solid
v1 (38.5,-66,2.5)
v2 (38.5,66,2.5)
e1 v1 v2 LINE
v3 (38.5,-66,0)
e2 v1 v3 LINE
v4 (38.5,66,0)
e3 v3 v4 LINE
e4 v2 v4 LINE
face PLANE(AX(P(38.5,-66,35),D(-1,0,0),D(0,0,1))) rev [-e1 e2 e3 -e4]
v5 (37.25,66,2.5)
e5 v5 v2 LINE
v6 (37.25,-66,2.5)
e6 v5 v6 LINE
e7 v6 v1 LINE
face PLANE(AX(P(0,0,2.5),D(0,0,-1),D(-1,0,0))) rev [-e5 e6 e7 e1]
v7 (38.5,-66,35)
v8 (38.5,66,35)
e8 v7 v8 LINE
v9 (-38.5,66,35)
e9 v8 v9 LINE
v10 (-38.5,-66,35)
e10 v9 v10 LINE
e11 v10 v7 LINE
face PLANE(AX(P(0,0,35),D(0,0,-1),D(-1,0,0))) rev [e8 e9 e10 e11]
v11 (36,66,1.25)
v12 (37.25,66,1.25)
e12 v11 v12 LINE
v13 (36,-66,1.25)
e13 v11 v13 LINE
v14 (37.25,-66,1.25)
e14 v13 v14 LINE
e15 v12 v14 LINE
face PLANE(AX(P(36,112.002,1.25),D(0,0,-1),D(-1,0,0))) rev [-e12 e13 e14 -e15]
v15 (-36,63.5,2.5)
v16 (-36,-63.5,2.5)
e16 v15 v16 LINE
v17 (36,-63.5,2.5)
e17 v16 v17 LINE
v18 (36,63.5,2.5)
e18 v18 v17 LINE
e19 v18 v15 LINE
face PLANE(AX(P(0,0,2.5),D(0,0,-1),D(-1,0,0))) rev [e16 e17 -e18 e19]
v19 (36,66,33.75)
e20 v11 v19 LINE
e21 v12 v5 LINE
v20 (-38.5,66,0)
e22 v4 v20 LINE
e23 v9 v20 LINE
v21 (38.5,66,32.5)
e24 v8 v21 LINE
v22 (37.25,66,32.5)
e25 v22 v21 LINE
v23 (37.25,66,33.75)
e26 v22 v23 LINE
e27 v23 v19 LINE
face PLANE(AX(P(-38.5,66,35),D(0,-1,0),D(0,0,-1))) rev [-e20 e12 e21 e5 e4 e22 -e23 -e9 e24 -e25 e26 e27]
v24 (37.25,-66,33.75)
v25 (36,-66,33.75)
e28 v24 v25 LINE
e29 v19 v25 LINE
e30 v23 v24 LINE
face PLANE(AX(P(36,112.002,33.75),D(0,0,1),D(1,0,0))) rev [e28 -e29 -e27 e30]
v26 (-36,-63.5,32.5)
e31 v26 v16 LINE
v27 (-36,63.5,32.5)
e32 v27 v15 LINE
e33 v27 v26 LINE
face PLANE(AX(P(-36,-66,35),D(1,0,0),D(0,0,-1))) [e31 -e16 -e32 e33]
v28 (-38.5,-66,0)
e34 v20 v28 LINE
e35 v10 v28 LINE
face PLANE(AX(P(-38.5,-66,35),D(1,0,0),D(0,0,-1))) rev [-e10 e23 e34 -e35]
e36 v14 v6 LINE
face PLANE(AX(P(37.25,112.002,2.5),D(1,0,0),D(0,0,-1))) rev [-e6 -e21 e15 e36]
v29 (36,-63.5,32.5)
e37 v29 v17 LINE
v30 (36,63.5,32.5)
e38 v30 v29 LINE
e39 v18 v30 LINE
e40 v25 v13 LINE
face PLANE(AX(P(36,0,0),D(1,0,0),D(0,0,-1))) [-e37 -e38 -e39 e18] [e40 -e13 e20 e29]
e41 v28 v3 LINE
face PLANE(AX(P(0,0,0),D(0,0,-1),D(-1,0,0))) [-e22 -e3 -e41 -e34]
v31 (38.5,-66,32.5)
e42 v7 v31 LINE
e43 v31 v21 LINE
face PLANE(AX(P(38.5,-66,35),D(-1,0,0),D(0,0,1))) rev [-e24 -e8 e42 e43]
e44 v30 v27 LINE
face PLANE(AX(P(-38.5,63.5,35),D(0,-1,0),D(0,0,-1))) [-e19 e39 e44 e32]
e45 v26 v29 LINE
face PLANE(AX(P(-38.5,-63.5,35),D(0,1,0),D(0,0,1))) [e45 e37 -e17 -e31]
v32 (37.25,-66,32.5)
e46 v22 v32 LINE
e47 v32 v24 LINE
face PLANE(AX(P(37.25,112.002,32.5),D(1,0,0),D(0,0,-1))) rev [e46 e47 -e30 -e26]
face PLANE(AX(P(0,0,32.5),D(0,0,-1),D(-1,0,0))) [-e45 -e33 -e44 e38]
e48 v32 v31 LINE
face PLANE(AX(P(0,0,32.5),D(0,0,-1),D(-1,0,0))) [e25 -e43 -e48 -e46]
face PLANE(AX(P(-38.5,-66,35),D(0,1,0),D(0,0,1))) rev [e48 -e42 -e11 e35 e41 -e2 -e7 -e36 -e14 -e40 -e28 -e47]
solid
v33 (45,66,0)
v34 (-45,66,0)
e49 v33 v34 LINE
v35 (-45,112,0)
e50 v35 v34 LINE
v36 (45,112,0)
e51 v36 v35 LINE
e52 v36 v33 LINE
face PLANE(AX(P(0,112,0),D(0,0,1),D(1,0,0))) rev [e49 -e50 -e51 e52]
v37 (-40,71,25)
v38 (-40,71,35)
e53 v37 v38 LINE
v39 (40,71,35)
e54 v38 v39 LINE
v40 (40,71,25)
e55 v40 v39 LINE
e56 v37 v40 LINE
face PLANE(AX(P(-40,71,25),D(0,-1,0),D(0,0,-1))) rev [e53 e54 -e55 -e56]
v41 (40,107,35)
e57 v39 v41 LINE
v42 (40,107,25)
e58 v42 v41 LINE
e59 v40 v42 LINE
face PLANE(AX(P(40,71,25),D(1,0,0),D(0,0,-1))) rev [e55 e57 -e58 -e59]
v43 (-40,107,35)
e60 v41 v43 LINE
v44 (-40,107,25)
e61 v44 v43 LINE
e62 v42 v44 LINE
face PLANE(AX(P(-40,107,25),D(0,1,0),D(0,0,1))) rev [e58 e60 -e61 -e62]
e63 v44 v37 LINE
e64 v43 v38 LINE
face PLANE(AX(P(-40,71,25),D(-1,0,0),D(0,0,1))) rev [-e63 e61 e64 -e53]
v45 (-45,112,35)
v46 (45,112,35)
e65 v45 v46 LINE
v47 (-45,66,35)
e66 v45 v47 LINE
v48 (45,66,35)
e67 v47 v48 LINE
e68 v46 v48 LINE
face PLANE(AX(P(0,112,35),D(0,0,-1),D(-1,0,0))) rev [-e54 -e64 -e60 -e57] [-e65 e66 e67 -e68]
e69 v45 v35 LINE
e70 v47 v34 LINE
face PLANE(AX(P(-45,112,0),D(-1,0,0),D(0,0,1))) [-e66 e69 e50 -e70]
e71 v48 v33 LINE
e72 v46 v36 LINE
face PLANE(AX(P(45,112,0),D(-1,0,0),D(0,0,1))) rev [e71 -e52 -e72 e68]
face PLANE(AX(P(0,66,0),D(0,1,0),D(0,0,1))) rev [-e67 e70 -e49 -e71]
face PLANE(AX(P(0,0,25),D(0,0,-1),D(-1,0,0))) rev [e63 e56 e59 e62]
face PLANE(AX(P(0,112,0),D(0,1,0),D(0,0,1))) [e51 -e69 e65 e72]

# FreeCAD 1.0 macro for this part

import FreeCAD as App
import Part
import Sketcher


def faces_at(feature, points):
    """Names of the faces that lie closest to the given points."""
    faces = feature.Shape.Faces
    near = lambda p: min(range(len(faces)), key=lambda i: faces[i].distToShape(Part.Vertex(*p))[0])
    return sorted({f"Face{near(p) + 1}" for p in points})


def add_polygon(sketch, points):
    """Adds a closed chain of lines whose ends are joined by coincident constraints."""
    first, n = sketch.GeometryCount, len(points)
    for a, b in zip(points, points[1:] + points[:1]):
        sketch.addGeometry(Part.LineSegment(App.Vector(*a, 0), App.Vector(*b, 0)), False)
    for i in range(n):
        sketch.addConstraint(Sketcher.Constraint("Coincident", first + i, 2, first + (i + 1) % n, 1))

doc = App.newDocument("Part")
body = doc.addObject("PartDesign::Body", "Body")

sketch1 = body.newObject("Sketcher::SketchObject", "Sketch")
sketch1.AttachmentSupport = (doc.getObject("XY_Plane"), [""])
sketch1.MapMode = "FlatFace"
add_polygon(sketch1, [(-38, 66), (-38, -66), (38, -66), (38, 66)])
sketch1.addConstraint(Sketcher.Constraint("Vertical", 0))
sketch1.addConstraint(Sketcher.Constraint("Horizontal", 1))
sketch1.addConstraint(Sketcher.Constraint("Vertical", 2))
sketch1.addConstraint(Sketcher.Constraint("Horizontal", 3))
sketch1.addConstraint(Sketcher.Constraint("Symmetric", 0, 2, 2, 2, -1, 1))
sketch1.addConstraint(Sketcher.Constraint("DistanceX", 1, 1, 1, 2, 77.0))
sketch1.addConstraint(Sketcher.Constraint("DistanceY", 0, 2, 0, 1, 132.0))
pad1 = body.newObject("PartDesign::Pad", "Pad")
pad1.Profile = sketch1
pad1.Length = 35
doc.recompute()

thickness = body.newObject("PartDesign::Thickness", "Thickness")
thickness.Base = (pad1, faces_at(pad1, [(38.5, 0, 17.5)]))
thickness.Value = 2.5
thickness.Reversed = True
thickness.Join = "Intersection"

sketch2 = body.newObject("Sketcher::SketchObject", "Sketch001")
sketch2.AttachmentSupport = (doc.getObject("YZ_Plane"), [""])
sketch2.MapMode = "FlatFace"
sketch2.AttachmentOffset = App.Placement(App.Vector(0, 0, 38.5), App.Rotation())
add_polygon(sketch2, [(66, 32), (-66, 32), (-66, 2), (66, 2)])
sketch2.addConstraint(Sketcher.Constraint("Horizontal", 0))
sketch2.addConstraint(Sketcher.Constraint("Vertical", 1))
sketch2.addConstraint(Sketcher.Constraint("Horizontal", 2))
sketch2.addConstraint(Sketcher.Constraint("Vertical", 3))
sketch2.addConstraint(Sketcher.Constraint("DistanceX", 0, 2, 0, 1, 132.0))
sketch2.addConstraint(Sketcher.Constraint("DistanceY", 1, 2, 1, 1, 30.0))
sketch2.addConstraint(Sketcher.Constraint("DistanceX", 0, 2, -1, 1, 66.0))
sketch2.addConstraint(Sketcher.Constraint("DistanceY", -1, 1, 0, 2, 32.5))
pocket1 = body.newObject("PartDesign::Pocket", "Pocket")
pocket1.Profile = sketch2
pocket1.Length = 2.5

sketch3 = body.newObject("Sketcher::SketchObject", "Sketch002")
sketch3.AttachmentSupport = (doc.getObject("XZ_Plane"), [""])
sketch3.MapMode = "FlatFace"
sketch3.AttachmentOffset = App.Placement(App.Vector(0, 0, -112), App.Rotation())
add_polygon(sketch3, [(36, 33.8), (36, 32.5), (37.2, 32.5), (37.2, 33.8)])
add_polygon(sketch3, [(36, 2.5), (36, 1.2), (37.2, 1.2), (37.2, 2.5)])
sketch3.addConstraint(Sketcher.Constraint("Vertical", 0))
sketch3.addConstraint(Sketcher.Constraint("Horizontal", 1))
sketch3.addConstraint(Sketcher.Constraint("Vertical", 2))
sketch3.addConstraint(Sketcher.Constraint("Horizontal", 3))
sketch3.addConstraint(Sketcher.Constraint("Vertical", 4))
sketch3.addConstraint(Sketcher.Constraint("Horizontal", 5))
sketch3.addConstraint(Sketcher.Constraint("Vertical", 6))
sketch3.addConstraint(Sketcher.Constraint("Horizontal", 7))
sketch3.addConstraint(Sketcher.Constraint("Vertical", 3, 2, 4, 2))
sketch3.addConstraint(Sketcher.Constraint("Vertical", 2, 2, 5, 2))
sketch3.addConstraint(Sketcher.Constraint("Equal", 7, 0))
sketch3.addConstraint(Sketcher.Constraint("Equal", 2, 4))
sketch3.addConstraint(Sketcher.Constraint("DistanceX", -1, 1, 0, 2, 36.0))
sketch3.addConstraint(Sketcher.Constraint("DistanceY", 6, 2, 1, 2, 30.0))
sketch3.addConstraint(Sketcher.Constraint("DistanceX", 1, 1, 1, 2, 1.25))
sketch3.addConstraint(Sketcher.Constraint("DistanceY", -1, 1, 0, 2, 32.5))
pocket2 = body.newObject("PartDesign::Pocket", "Pocket001")
pocket2.Profile = sketch3
pocket2.Length = 178
pocket2.Reversed = True
body2 = doc.addObject("PartDesign::Body", "Body001")

sketch4 = body2.newObject("Sketcher::SketchObject", "Sketch003")
sketch4.AttachmentSupport = (doc.getObject("XZ_Plane001"), [""])
sketch4.MapMode = "FlatFace"
sketch4.AttachmentOffset = App.Placement(App.Vector(0, 0, -66), App.Rotation())
add_polygon(sketch4, [(-45, 0), (-45, 35), (45, 35), (45, 0)])
sketch4.addConstraint(Sketcher.Constraint("Vertical", 0))
sketch4.addConstraint(Sketcher.Constraint("Horizontal", 1))
sketch4.addConstraint(Sketcher.Constraint("Vertical", 2))
sketch4.addConstraint(Sketcher.Constraint("Horizontal", 3))
sketch4.addConstraint(Sketcher.Constraint("Symmetric", 2, 2, 3, 2, -1, 1))
sketch4.addConstraint(Sketcher.Constraint("DistanceX", 1, 1, 1, 2, 90.0))
sketch4.addConstraint(Sketcher.Constraint("DistanceY", 0, 1, 0, 2, 35.0))
pad2 = body2.newObject("PartDesign::Pad", "Pad001")
pad2.Profile = sketch4
pad2.Length = 46
pad2.Reversed = True

sketch5 = body2.newObject("Sketcher::SketchObject", "Sketch004")
sketch5.AttachmentSupport = (doc.getObject("XY_Plane001"), [""])
sketch5.MapMode = "FlatFace"
sketch5.AttachmentOffset = App.Placement(App.Vector(0, 0, 35), App.Rotation())
add_polygon(sketch5, [(-40, 107), (-40, 71), (40, 71), (40, 107)])
sketch5.addConstraint(Sketcher.Constraint("Vertical", 0))
sketch5.addConstraint(Sketcher.Constraint("Horizontal", 1))
sketch5.addConstraint(Sketcher.Constraint("Vertical", 2))
sketch5.addConstraint(Sketcher.Constraint("Horizontal", 3))
sketch5.addConstraint(Sketcher.Constraint("DistanceX", 1, 1, 1, 2, 80.0))
sketch5.addConstraint(Sketcher.Constraint("DistanceY", 0, 2, 0, 1, 36.0))
sketch5.addConstraint(Sketcher.Constraint("DistanceX", 0, 2, -1, 1, 40.0))
sketch5.addConstraint(Sketcher.Constraint("DistanceY", -1, 1, 0, 2, 71.0))
pocket3 = body2.newObject("PartDesign::Pocket", "Pocket002")
pocket3.Profile = sketch5
pocket3.Length = 10

doc.recompute()
